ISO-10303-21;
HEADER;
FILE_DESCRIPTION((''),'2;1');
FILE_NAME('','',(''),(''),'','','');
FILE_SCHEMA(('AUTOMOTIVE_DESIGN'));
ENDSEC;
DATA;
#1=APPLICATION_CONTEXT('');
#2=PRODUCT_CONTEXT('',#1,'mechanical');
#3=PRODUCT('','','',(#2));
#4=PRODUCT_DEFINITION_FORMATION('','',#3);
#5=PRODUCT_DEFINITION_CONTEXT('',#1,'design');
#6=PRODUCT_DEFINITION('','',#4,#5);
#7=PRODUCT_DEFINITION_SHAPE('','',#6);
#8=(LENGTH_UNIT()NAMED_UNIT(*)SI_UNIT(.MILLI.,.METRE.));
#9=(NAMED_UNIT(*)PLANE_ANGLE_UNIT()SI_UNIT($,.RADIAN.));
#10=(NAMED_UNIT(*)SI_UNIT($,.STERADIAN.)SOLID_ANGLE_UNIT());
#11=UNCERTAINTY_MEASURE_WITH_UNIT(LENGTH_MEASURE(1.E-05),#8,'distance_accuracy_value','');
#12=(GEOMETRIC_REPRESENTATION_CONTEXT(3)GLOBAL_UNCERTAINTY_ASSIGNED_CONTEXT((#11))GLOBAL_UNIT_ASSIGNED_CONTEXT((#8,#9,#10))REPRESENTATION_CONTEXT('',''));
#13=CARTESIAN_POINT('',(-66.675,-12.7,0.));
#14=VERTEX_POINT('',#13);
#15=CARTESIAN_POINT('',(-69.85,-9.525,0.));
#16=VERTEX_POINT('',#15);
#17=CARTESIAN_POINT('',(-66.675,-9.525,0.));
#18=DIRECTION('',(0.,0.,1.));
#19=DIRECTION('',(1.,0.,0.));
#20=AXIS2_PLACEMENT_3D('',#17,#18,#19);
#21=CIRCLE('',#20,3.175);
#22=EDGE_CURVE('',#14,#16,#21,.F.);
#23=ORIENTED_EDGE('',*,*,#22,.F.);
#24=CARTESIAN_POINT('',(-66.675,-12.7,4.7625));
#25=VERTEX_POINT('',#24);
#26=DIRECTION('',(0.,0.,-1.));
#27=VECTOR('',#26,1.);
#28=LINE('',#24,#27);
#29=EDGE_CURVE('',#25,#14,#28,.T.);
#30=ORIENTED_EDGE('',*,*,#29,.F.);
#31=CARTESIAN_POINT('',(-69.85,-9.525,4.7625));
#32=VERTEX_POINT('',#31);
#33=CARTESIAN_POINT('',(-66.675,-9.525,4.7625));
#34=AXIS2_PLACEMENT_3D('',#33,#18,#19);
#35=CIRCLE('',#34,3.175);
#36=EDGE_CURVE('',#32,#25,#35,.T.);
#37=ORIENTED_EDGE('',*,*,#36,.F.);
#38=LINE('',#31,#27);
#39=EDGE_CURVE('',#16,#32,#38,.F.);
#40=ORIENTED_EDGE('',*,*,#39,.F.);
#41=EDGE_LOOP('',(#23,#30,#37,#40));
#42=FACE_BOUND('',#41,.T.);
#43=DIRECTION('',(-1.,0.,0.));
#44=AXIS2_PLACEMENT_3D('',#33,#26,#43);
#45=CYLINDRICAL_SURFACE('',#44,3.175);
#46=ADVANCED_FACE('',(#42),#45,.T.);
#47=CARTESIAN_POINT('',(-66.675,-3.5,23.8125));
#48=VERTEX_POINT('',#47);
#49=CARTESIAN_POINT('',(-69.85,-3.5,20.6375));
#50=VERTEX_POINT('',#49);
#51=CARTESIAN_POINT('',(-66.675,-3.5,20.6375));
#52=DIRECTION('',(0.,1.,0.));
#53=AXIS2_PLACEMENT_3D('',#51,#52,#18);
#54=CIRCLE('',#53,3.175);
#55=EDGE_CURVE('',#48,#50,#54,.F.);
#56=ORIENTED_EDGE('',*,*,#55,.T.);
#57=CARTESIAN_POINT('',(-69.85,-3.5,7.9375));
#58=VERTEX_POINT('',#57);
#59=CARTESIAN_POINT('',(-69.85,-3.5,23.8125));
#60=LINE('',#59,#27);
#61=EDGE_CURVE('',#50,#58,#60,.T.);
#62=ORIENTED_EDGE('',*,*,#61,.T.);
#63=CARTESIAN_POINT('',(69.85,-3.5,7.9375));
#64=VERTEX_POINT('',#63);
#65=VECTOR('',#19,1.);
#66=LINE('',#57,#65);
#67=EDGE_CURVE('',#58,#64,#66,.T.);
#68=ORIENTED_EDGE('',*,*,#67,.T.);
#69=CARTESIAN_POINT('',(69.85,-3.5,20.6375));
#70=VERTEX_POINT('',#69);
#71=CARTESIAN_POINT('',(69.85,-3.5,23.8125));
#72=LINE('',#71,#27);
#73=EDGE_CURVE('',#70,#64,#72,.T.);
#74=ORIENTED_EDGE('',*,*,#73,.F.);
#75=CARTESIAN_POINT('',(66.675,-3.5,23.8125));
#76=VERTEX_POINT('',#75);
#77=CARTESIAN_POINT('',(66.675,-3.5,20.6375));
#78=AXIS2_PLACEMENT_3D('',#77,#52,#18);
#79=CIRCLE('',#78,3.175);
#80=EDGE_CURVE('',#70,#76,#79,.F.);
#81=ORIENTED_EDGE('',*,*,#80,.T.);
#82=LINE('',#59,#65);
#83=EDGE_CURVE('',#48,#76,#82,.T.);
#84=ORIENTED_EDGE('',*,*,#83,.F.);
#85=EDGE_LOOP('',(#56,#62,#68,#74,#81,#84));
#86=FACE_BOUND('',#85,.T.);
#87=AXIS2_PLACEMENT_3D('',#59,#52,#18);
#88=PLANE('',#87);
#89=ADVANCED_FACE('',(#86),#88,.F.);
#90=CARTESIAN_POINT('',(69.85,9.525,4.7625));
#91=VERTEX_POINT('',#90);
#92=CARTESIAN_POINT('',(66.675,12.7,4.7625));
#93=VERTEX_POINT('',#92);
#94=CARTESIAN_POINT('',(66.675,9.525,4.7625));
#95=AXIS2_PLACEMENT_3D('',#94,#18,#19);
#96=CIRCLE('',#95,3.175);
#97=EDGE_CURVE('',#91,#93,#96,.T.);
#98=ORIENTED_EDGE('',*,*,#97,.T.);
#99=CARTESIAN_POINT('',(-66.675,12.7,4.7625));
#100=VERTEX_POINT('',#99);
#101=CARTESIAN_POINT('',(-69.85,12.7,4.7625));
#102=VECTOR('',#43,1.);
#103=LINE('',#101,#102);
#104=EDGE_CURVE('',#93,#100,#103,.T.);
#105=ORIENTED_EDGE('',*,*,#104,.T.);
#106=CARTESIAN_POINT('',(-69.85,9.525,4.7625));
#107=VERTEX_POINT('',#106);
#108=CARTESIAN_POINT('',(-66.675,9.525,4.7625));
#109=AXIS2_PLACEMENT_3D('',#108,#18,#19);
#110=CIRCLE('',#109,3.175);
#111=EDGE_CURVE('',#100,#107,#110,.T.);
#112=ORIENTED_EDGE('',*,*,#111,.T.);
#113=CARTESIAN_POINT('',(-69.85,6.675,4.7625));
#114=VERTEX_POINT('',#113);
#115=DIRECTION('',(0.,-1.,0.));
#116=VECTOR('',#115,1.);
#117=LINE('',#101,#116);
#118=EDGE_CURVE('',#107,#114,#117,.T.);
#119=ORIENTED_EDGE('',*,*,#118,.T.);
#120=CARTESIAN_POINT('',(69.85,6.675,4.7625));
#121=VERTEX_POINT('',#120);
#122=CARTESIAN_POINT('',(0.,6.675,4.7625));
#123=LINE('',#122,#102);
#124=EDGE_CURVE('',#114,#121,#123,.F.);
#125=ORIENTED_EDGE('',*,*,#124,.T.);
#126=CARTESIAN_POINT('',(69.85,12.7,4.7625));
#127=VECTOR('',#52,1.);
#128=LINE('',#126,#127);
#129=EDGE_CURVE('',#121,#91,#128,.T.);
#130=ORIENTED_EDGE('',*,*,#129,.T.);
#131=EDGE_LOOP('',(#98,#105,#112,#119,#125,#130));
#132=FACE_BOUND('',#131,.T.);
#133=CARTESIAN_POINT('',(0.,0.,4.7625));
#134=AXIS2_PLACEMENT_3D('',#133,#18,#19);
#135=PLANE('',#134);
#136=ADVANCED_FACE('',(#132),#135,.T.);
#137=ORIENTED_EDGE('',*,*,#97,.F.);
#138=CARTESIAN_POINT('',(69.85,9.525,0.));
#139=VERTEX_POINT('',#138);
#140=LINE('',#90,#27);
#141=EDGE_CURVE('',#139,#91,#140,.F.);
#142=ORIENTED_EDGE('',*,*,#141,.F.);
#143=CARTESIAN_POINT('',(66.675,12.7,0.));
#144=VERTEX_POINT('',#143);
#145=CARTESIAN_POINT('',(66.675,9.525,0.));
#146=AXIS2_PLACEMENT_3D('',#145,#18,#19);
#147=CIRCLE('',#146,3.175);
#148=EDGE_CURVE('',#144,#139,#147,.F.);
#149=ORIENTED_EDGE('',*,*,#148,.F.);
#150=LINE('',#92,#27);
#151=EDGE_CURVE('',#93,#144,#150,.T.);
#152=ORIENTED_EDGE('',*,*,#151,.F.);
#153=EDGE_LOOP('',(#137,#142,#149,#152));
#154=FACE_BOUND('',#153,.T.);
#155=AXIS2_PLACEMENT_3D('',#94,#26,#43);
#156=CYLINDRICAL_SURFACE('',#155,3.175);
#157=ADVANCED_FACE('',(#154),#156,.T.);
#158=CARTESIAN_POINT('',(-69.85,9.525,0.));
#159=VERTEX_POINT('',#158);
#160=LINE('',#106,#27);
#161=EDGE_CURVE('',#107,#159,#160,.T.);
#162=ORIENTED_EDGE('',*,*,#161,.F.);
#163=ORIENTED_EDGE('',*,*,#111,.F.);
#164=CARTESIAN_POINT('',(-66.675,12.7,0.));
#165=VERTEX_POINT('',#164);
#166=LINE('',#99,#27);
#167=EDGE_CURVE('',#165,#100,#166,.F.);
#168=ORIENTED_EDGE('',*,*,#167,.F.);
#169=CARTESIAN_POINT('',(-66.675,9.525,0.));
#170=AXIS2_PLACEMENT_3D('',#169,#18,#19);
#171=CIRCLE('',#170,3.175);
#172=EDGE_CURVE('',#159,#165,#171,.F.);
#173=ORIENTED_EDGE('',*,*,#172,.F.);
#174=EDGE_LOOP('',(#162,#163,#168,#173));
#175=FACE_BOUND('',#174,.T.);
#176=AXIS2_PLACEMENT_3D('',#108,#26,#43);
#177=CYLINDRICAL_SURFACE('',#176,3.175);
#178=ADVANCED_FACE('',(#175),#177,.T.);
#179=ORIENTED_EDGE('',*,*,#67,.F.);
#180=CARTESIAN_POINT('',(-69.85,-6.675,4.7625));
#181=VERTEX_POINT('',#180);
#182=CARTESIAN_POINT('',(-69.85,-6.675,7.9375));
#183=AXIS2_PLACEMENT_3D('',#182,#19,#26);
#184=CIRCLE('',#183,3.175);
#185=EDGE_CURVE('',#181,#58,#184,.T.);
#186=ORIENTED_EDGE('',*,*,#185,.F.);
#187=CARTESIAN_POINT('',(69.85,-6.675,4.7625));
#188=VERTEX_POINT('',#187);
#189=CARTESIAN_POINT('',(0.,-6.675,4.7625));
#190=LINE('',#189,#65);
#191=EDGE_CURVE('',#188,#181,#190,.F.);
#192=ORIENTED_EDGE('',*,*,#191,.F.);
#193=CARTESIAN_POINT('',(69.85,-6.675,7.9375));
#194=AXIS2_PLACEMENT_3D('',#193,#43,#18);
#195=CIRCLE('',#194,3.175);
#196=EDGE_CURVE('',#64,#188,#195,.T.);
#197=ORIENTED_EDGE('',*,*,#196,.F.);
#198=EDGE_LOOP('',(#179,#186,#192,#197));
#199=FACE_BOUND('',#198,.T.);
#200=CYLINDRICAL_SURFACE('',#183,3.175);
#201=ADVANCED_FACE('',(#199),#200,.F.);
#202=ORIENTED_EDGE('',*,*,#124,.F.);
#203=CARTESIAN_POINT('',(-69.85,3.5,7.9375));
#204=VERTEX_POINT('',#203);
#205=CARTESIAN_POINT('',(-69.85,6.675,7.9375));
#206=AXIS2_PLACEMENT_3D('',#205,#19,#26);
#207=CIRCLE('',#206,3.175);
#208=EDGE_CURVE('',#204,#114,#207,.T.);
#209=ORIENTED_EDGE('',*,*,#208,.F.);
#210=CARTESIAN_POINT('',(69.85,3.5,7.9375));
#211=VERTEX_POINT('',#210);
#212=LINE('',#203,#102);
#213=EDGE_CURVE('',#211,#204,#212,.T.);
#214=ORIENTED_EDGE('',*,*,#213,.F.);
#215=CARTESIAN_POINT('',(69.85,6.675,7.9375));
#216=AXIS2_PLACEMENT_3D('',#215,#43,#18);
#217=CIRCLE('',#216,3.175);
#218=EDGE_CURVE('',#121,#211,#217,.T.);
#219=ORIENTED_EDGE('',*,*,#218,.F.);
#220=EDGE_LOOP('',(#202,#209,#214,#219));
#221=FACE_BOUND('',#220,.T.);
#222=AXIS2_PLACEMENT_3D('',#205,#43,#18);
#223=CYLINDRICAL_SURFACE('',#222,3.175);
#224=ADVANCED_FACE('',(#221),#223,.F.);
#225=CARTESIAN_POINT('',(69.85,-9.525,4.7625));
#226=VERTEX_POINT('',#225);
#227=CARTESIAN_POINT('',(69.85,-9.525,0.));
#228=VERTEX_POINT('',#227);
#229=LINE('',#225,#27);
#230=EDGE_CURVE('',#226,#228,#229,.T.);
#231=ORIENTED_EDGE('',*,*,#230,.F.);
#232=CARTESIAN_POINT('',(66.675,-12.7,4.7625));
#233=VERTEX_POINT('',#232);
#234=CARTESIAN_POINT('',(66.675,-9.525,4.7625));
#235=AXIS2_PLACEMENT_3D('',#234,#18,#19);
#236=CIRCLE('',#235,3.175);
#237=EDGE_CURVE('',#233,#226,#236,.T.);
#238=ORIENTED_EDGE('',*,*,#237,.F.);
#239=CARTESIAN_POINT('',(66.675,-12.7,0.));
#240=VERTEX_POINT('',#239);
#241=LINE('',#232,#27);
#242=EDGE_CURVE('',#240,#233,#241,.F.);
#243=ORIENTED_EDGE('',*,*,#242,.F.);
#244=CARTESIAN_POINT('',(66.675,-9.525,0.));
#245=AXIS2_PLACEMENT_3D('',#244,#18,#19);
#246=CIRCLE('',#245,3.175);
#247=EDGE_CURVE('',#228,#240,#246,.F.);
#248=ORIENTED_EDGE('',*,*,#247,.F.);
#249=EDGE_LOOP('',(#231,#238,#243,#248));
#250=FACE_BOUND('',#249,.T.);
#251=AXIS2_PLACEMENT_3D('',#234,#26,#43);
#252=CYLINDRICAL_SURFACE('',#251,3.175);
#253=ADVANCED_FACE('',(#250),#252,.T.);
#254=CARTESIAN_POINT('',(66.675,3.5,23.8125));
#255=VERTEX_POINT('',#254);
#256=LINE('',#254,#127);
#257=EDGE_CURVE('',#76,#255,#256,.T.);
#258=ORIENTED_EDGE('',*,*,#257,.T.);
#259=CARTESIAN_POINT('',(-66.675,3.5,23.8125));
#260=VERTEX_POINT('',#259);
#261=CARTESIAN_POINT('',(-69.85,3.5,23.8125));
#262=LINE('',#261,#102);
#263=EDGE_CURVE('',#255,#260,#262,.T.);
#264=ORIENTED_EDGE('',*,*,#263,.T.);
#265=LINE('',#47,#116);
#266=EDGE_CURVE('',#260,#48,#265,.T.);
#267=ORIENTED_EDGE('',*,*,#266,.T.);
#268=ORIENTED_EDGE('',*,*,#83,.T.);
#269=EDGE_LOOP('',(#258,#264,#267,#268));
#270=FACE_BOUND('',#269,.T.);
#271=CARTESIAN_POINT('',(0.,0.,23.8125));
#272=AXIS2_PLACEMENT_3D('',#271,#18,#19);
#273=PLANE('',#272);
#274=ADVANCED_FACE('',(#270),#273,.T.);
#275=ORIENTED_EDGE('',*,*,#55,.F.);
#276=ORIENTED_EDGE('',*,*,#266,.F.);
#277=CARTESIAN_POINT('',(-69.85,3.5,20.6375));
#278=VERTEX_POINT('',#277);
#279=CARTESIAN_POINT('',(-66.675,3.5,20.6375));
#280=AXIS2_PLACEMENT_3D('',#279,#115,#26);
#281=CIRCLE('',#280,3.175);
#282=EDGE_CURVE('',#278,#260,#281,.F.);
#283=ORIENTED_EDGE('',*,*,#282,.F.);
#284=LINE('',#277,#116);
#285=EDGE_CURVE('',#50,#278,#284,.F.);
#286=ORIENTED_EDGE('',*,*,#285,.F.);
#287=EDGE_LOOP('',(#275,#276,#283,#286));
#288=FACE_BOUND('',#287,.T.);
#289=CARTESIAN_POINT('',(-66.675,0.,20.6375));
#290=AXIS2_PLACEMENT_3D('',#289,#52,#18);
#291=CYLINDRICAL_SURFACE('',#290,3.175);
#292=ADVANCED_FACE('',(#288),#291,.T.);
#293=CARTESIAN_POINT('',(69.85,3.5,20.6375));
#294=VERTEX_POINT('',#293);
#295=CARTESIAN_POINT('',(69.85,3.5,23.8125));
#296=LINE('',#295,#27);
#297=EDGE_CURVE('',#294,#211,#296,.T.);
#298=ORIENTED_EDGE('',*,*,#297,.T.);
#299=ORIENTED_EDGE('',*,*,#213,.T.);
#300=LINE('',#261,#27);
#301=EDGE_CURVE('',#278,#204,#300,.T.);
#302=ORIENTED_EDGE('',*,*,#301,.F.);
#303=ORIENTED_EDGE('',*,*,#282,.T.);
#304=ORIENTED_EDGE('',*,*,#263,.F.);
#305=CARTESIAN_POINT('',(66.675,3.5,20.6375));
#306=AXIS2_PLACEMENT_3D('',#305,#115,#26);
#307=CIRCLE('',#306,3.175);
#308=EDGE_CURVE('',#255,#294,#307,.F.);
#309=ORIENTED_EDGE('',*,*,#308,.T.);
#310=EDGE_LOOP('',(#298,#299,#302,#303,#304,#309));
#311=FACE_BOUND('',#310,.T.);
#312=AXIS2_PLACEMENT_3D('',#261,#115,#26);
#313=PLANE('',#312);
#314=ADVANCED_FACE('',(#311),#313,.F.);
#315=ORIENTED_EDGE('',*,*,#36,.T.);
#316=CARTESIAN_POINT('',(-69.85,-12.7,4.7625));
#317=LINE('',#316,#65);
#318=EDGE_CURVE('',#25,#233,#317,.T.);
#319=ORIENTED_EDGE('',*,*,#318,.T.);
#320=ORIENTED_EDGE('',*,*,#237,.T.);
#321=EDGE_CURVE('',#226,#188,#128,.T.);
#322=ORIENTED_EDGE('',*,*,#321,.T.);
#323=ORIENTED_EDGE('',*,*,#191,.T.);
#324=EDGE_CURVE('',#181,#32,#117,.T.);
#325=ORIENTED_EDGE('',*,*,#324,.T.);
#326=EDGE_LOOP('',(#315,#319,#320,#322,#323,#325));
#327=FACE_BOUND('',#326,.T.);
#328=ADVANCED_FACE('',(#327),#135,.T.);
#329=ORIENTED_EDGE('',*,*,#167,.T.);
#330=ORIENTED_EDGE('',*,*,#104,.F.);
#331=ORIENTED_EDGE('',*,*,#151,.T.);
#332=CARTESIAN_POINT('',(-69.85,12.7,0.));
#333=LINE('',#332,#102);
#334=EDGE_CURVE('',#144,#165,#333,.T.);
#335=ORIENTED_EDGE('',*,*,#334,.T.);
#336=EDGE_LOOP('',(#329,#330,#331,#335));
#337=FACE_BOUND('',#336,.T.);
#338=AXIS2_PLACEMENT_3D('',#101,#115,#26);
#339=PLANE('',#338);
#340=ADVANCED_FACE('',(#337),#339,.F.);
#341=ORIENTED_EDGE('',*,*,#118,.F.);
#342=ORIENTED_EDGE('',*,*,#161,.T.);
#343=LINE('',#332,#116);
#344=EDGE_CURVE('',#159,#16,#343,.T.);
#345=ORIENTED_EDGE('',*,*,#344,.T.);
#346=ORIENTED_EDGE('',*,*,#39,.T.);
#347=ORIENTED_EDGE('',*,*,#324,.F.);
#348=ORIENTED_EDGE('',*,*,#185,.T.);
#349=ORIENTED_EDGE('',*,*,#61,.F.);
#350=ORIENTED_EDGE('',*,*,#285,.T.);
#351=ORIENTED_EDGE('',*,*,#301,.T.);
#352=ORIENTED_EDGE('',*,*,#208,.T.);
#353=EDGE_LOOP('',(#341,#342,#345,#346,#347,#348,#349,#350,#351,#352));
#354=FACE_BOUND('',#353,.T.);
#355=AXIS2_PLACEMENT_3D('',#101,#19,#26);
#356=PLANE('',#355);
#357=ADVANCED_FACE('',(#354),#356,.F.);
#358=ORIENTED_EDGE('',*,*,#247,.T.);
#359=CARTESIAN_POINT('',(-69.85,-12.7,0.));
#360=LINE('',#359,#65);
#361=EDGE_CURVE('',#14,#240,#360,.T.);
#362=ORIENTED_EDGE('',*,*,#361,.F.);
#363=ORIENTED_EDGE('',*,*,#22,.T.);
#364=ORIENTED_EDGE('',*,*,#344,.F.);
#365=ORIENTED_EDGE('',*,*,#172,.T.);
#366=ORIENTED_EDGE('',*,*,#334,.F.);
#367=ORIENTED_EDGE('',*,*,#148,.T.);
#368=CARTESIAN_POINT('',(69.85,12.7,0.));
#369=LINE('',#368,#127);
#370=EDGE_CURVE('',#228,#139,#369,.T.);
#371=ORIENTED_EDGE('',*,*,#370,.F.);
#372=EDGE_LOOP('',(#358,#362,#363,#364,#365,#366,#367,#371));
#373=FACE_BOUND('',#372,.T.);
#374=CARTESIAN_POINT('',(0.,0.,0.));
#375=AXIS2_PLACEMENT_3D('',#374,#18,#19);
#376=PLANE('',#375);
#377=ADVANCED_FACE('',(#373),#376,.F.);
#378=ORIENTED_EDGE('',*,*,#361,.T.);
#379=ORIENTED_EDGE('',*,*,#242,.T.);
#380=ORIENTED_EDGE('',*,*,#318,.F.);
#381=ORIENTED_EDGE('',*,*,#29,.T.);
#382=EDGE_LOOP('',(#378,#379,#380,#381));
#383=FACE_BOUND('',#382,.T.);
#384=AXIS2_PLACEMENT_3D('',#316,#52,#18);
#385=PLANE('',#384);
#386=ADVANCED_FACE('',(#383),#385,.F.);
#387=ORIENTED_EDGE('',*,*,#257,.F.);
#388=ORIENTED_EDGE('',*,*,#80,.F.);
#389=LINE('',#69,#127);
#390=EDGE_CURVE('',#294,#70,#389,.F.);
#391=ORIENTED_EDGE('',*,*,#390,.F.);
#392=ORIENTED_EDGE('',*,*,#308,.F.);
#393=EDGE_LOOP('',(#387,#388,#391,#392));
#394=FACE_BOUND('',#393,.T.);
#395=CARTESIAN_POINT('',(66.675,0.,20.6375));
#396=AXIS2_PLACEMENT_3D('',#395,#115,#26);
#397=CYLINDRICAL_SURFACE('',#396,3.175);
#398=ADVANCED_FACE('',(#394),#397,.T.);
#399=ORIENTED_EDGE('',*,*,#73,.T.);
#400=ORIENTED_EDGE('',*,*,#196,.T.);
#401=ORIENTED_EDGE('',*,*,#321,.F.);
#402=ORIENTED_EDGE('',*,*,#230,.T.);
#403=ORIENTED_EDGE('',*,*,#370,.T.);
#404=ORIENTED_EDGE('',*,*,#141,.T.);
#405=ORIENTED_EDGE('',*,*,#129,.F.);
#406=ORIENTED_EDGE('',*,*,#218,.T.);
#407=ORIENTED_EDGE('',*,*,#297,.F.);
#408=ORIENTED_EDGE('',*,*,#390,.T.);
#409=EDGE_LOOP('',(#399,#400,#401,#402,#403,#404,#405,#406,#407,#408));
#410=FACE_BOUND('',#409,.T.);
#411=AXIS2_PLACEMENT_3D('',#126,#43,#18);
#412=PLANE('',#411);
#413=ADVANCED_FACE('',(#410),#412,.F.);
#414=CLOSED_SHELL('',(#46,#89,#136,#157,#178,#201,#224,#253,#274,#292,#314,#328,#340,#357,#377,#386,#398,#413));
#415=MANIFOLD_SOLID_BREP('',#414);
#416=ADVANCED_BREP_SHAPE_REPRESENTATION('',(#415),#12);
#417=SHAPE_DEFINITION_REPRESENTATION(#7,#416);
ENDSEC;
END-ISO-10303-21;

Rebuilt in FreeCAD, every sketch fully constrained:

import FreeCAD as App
import Part
import Sketcher
Q = App.Units.Quantity


def edges_at(feature, points):
    """Names of the edges that pass closest to the given points."""
    edges = feature.Shape.Edges
    near = lambda p: min(range(len(edges)), key=lambda i: edges[i].distToShape(Part.Vertex(*p))[0])
    return sorted({f"Edge{near(p) + 1}" for p in points})

doc = App.newDocument("Part")
params = doc.addObject("Spreadsheet::Sheet", "Params")
for row, (alias, value) in enumerate([
    ("sketch1_height", "1 in"),
    ("sketch1_width", "5.5 in"),
    ("pad1_length", "0.1875 in"),
    ("sketch2_width", "5.5 in"),
    ("pad2_length", "0.75 in"),
    ("fillet_radius", "0.125 in"),
], start=1):
    params.set(f"A{row}", alias)
    params.set(f"B{row}", "=" + value)
    params.setAlias(f"B{row}", alias)

body = doc.addObject("PartDesign::Body", "Body")

# Sketch on XY plane
sketch1 = body.newObject("Sketcher::SketchObject", "Sketch")
sketch1.AttachmentSupport = (doc.getObject("XY_Plane"), [""])
sketch1.MapMode = "FlatFace"
sketch1.addGeometry([
    Part.LineSegment(App.Vector(-70, 13, 0), App.Vector(-70, -13, 0)),
    Part.LineSegment(App.Vector(-70, -13, 0), App.Vector(70, -13, 0)),
    Part.LineSegment(App.Vector(70, -13, 0), App.Vector(70, 13, 0)),
    Part.LineSegment(App.Vector(70, 13, 0), App.Vector(-70, 13, 0)),
], False)
sketch1.addConstraint([
    Sketcher.Constraint("Coincident", 0, 2, 1, 1),
    Sketcher.Constraint("Coincident", 1, 2, 2, 1),
    Sketcher.Constraint("Coincident", 2, 2, 3, 1),
    Sketcher.Constraint("Coincident", 3, 2, 0, 1),
    Sketcher.Constraint("Vertical", 0),
    Sketcher.Constraint("Horizontal", 1),
    Sketcher.Constraint("Vertical", 2),
    Sketcher.Constraint("Horizontal", 3),
    Sketcher.Constraint("Symmetric", 0, 2, 2, 2, -1, 1),
    Sketcher.Constraint("DistanceY", 0, 2, 0, 1, Q("1 in")),
    Sketcher.Constraint("DistanceX", 1, 1, 1, 2, Q("5.5 in")),
])
sketch1.setExpression("Constraints[9]", "Params.sketch1_height")
sketch1.setExpression("Constraints[10]", "Params.sketch1_width")
pad1 = body.newObject("PartDesign::Pad", "Pad")
pad1.Profile = sketch1
pad1.setExpression("Length", "Params.pad1_length")

# Sketch on XY plane
sketch2 = body.newObject("Sketcher::SketchObject", "Sketch001")
sketch2.AttachmentSupport = (doc.getObject("XY_Plane"), [""])
sketch2.MapMode = "FlatFace"
sketch2.AttachmentOffset = App.Placement(App.Vector(0, 0, 0.1875 * 25.4), App.Rotation())
sketch2.addGeometry([
    Part.LineSegment(App.Vector(-70, 4, 0), App.Vector(-70, -4, 0)),
    Part.LineSegment(App.Vector(-70, -4, 0), App.Vector(70, -4, 0)),
    Part.LineSegment(App.Vector(70, -4, 0), App.Vector(70, 4, 0)),
    Part.LineSegment(App.Vector(70, 4, 0), App.Vector(-70, 4, 0)),
], False)
sketch2.addConstraint([
    Sketcher.Constraint("Coincident", 0, 2, 1, 1),
    Sketcher.Constraint("Coincident", 1, 2, 2, 1),
    Sketcher.Constraint("Coincident", 2, 2, 3, 1),
    Sketcher.Constraint("Coincident", 3, 2, 0, 1),
    Sketcher.Constraint("Vertical", 0),
    Sketcher.Constraint("Horizontal", 1),
    Sketcher.Constraint("Vertical", 2),
    Sketcher.Constraint("Horizontal", 3),
    Sketcher.Constraint("Symmetric", 0, 2, 2, 2, -1, 1),
    Sketcher.Constraint("DistanceX", 1, 1, 1, 2, Q("5.5 in")),
    Sketcher.Constraint("DistanceY", 0, 2, 0, 1, 7.0),
])
sketch2.setExpression("Constraints[9]", "Params.sketch2_width")
pad2 = body.newObject("PartDesign::Pad", "Pad001")
pad2.Profile = sketch2
pad2.setExpression("Length", "Params.pad2_length")
doc.recompute()

fillet = body.newObject("PartDesign::Fillet", "Fillet")
fillet.Base = (pad2, edges_at(pad2, [
    (0, 3.5, 4.763),
    (0, -3.5, 4.763),
    (69.85, 0, 23.812),
    (-69.85, 0, 23.812),
    (69.85, -12.7, 2.381),
    (-69.85, -12.7, 2.381),
    (-69.85, 12.7, 2.381),
    (69.85, 12.7, 2.381),
]))
fillet.setExpression("Radius", "Params.fillet_radius")

doc.recompute()
